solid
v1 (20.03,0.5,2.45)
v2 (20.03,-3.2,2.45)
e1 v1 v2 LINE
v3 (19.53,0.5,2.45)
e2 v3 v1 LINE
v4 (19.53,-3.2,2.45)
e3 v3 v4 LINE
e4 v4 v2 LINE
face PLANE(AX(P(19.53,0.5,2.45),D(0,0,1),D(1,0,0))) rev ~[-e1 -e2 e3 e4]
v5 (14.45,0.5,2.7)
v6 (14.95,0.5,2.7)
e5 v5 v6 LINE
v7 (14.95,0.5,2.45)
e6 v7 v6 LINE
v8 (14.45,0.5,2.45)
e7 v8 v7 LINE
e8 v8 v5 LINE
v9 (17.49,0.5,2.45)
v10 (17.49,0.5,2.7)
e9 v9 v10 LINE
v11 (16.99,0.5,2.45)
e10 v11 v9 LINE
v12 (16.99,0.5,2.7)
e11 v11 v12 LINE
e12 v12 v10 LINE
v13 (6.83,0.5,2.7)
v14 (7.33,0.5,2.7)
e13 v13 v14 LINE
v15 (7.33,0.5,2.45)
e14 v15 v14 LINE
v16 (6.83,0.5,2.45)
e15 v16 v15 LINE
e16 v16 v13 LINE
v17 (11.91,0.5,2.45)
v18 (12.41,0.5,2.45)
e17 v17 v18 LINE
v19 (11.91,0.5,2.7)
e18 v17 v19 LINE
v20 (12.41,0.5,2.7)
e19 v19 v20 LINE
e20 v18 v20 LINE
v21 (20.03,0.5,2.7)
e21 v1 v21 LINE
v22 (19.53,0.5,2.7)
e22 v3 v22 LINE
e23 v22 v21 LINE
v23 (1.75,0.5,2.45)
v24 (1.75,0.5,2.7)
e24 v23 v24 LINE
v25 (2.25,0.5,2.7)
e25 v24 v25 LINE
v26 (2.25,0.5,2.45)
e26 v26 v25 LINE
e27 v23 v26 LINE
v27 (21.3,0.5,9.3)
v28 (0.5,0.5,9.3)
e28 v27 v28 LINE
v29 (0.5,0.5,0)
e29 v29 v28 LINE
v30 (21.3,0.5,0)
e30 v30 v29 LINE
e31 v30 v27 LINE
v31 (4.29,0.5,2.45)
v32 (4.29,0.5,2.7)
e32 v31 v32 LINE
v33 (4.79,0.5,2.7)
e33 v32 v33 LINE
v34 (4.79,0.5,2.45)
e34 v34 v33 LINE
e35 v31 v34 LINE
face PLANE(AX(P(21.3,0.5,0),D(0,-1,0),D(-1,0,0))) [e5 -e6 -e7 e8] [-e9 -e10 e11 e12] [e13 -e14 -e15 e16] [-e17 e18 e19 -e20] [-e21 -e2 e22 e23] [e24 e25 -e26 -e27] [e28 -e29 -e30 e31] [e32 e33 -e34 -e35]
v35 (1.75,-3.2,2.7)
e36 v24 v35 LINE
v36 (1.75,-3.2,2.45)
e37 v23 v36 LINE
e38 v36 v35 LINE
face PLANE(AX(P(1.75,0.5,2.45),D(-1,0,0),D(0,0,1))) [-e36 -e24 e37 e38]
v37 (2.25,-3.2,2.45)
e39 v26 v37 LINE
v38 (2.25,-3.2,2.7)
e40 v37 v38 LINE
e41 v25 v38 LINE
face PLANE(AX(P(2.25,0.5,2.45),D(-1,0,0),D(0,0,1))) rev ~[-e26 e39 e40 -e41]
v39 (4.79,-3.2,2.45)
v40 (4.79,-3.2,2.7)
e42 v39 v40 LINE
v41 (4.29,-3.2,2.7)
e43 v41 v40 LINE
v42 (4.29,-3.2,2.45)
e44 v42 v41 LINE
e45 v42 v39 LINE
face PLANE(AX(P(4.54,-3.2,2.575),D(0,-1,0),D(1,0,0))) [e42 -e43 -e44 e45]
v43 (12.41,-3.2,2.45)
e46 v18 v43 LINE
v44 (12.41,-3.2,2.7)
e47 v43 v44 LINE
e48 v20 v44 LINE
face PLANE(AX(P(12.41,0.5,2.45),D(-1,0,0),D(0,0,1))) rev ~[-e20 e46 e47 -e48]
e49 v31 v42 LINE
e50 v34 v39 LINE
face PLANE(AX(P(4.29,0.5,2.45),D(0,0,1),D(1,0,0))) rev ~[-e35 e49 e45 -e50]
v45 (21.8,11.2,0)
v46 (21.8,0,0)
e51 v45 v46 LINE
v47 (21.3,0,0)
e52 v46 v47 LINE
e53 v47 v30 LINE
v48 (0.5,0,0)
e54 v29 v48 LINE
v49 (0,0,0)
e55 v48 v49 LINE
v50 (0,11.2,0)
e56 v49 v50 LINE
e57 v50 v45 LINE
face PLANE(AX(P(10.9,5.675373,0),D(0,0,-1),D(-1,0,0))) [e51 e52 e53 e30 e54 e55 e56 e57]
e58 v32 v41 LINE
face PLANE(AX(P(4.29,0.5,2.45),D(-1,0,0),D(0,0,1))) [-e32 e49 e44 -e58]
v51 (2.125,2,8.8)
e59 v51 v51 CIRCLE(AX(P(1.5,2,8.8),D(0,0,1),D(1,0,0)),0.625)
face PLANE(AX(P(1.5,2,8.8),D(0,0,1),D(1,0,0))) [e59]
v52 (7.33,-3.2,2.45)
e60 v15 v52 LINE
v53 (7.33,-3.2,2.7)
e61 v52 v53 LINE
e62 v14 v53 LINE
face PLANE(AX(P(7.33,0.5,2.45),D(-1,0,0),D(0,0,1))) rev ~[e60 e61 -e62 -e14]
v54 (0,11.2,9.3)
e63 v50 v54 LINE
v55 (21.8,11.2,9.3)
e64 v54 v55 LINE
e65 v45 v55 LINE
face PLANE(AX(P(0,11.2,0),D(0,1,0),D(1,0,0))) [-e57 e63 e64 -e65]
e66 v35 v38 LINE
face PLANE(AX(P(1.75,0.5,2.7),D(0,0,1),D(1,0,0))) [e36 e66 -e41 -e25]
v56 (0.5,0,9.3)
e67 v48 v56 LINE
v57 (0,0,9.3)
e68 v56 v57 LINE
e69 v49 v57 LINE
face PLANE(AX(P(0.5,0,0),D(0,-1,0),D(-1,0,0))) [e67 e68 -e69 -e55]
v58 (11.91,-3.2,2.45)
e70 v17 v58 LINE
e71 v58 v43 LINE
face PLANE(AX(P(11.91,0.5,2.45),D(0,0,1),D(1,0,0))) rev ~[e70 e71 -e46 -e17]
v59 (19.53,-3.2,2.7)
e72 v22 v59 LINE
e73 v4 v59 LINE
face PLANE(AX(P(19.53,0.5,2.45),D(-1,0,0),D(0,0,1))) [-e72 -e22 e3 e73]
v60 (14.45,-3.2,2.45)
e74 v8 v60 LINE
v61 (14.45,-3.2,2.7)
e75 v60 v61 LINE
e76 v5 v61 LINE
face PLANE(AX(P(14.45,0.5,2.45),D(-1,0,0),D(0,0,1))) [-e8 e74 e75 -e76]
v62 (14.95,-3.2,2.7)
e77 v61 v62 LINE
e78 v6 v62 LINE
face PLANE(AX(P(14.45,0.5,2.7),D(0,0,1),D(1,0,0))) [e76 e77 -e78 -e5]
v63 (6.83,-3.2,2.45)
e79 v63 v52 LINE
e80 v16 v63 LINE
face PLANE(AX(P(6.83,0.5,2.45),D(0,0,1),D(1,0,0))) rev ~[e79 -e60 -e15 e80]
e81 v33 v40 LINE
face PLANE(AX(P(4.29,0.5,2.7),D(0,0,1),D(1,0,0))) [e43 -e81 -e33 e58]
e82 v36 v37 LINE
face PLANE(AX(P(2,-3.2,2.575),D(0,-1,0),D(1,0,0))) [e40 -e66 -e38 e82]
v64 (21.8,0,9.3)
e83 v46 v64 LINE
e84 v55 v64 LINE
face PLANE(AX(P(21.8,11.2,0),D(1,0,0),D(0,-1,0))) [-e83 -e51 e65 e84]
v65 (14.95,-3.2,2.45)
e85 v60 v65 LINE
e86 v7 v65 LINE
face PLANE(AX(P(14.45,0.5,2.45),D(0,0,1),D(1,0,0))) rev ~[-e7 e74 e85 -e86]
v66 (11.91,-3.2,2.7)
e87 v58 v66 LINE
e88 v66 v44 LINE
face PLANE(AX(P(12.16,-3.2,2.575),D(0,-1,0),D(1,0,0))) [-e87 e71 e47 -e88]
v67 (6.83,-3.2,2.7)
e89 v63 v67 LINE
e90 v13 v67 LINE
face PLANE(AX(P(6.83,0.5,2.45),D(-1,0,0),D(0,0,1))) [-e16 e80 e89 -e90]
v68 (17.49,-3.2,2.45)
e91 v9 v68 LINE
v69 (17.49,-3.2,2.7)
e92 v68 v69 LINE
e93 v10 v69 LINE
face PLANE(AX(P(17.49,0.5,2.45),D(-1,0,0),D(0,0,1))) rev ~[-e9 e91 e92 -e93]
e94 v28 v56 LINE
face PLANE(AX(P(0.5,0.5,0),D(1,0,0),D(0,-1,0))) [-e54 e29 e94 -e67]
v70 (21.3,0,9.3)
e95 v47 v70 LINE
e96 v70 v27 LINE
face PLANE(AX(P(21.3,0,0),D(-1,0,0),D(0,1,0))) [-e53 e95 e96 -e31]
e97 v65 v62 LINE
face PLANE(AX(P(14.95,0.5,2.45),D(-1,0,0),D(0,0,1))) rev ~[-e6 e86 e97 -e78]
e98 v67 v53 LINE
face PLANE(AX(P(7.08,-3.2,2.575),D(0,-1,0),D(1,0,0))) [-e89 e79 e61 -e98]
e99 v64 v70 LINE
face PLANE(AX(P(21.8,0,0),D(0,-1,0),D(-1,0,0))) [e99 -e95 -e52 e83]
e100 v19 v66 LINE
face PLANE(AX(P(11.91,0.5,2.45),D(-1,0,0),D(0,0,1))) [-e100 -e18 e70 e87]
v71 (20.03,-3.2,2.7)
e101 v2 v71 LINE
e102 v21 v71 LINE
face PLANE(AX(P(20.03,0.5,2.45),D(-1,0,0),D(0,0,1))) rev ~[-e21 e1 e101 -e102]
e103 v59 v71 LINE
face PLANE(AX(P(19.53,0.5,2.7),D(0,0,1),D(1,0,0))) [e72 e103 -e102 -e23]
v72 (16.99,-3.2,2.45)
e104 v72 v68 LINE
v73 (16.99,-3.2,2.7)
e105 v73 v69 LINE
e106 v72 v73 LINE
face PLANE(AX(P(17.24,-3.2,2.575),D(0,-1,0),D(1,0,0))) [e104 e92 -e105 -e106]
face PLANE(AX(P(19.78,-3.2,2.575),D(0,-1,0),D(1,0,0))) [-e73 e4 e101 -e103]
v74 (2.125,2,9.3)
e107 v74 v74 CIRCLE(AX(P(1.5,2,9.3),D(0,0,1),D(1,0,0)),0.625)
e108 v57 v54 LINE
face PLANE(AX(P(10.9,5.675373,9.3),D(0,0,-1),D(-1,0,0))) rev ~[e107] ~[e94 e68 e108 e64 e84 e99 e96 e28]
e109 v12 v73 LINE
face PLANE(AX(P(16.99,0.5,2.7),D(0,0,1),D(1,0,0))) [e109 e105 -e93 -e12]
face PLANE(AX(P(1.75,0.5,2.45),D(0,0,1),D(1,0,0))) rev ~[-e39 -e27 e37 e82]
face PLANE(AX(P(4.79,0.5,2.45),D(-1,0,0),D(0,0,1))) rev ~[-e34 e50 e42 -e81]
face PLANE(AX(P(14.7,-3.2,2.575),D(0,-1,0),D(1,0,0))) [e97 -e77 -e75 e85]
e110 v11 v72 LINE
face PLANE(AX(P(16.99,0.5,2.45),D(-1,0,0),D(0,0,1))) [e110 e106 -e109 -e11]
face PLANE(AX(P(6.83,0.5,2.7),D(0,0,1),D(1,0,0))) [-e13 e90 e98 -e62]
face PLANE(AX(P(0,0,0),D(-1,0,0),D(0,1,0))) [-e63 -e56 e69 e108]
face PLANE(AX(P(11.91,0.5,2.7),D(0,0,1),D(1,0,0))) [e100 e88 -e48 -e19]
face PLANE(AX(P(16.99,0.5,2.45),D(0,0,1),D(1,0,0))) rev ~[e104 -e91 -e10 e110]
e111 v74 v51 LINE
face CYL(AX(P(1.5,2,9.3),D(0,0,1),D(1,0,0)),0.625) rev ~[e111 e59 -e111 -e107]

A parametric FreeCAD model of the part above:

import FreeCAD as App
import Part
import Sketcher
from FreeCAD import Vector
Q = App.Units.Quantity


def add_polygon(sketch, points):
    """Adds a closed chain of lines whose ends are joined by coincident constraints."""
    first, n = sketch.GeometryCount, len(points)
    for a, b in zip(points, points[1:] + points[:1]):
        sketch.addGeometry(Part.LineSegment(App.Vector(*a, 0), App.Vector(*b, 0)), False)
    for i in range(n):
        sketch.addConstraint(Sketcher.Constraint("Coincident", first + i, 2, first + (i + 1) % n, 1))

doc = App.newDocument("Part")
body = doc.addObject("PartDesign::Body", "Body")

# Sketch on XY plane
sketch1 = doc.addObject("Sketcher::SketchObject", "Sketch")
body.addObject(sketch1)
sketch1.AttachmentSupport = (doc.XY_Plane, [""])
sketch1.MapMode = "FlatFace"
add_polygon(sketch1, [(0, 11.2), (0, 0), (0.5, 0), (0.5, 0.5), (21.3, 0.5), (21.3, 0), (21.8, 0), (21.8, 11.2)])  # lines 0-7
sketch1.addConstraint([
    Sketcher.Constraint("Vertical", 0),
    Sketcher.Constraint("Horizontal", 1),
    Sketcher.Constraint("Vertical", 2),
    Sketcher.Constraint("Horizontal", 3),
    Sketcher.Constraint("Vertical", 4),
    Sketcher.Constraint("Horizontal", 5),
    Sketcher.Constraint("Vertical", 6),
    Sketcher.Constraint("Horizontal", 7),
    Sketcher.Constraint("Coincident", 0, 2, -1, 1),
    Sketcher.Constraint("PointOnObject", 4, 2, -1),
    Sketcher.Constraint("Equal", 1, 5),
    Sketcher.Constraint("Equal", 5, 2),
    Sketcher.Constraint("DistanceX", 1, 1, 1, 2, Q("0.5 mm")),
    Sketcher.Constraint("DistanceX", 3, 1, 3, 2, Q("20.8 mm")),
    Sketcher.Constraint("DistanceY", 0, 2, 0, 1, Q("11.2 mm")),
])
pad1 = doc.addObject("PartDesign::Pad", "Pad")
body.addObject(pad1)
pad1.Profile = sketch1
pad1.Length = 9.3

# Sketch on XZ plane
sketch2 = doc.addObject("Sketcher::SketchObject", "Sketch001")
body.addObject(sketch2)
sketch2.AttachmentSupport = (doc.XZ_Plane, [""])
sketch2.MapMode = "FlatFace"
sketch2.AttachmentOffset = App.Placement(Vector(0, 0, -0.5), App.Rotation())
add_polygon(sketch2, [(1.75, 2.7), (1.75, 2.45), (2.25, 2.45), (2.25, 2.7)])  # lines 0-3
add_polygon(sketch2, [(4.29, 2.7), (4.29, 2.45), (4.79, 2.45), (4.79, 2.7)])  # lines 4-7
add_polygon(sketch2, [(6.83, 2.7), (6.83, 2.45), (7.33, 2.45), (7.33, 2.7)])  # lines 8-11
add_polygon(sketch2, [(11.91, 2.7), (11.91, 2.45), (12.41, 2.45), (12.41, 2.7)])  # lines 12-15
add_polygon(sketch2, [(14.45, 2.7), (14.45, 2.45), (14.95, 2.45), (14.95, 2.7)])  # lines 16-19
add_polygon(sketch2, [(16.99, 2.7), (16.99, 2.45), (17.49, 2.45), (17.49, 2.7)])  # lines 20-23
add_polygon(sketch2, [(19.53, 2.7), (19.53, 2.45), (20.03, 2.45), (20.03, 2.7)])  # lines 24-27
sketch2.addConstraint([
    Sketcher.Constraint("Vertical", 0),
    Sketcher.Constraint("Horizontal", 1),
    Sketcher.Constraint("Vertical", 2),
    Sketcher.Constraint("Horizontal", 3),
    Sketcher.Constraint("Vertical", 4),
    Sketcher.Constraint("Horizontal", 5),
    Sketcher.Constraint("Vertical", 6),
    Sketcher.Constraint("Horizontal", 7),
    Sketcher.Constraint("Vertical", 8),
    Sketcher.Constraint("Horizontal", 9),
    Sketcher.Constraint("Vertical", 10),
    Sketcher.Constraint("Horizontal", 11),
    Sketcher.Constraint("Vertical", 12),
    Sketcher.Constraint("Horizontal", 13),
    Sketcher.Constraint("Vertical", 14),
    Sketcher.Constraint("Horizontal", 15),
    Sketcher.Constraint("Vertical", 16),
    Sketcher.Constraint("Horizontal", 17),
    Sketcher.Constraint("Vertical", 18),
    Sketcher.Constraint("Horizontal", 19),
    Sketcher.Constraint("Vertical", 20),
    Sketcher.Constraint("Horizontal", 21),
    Sketcher.Constraint("Vertical", 22),
    Sketcher.Constraint("Horizontal", 23),
    Sketcher.Constraint("Vertical", 24),
    Sketcher.Constraint("Horizontal", 25),
    Sketcher.Constraint("Vertical", 26),
    Sketcher.Constraint("Horizontal", 27),
    Sketcher.Constraint("Horizontal", 1, 2, 4, 2),
    Sketcher.Constraint("Horizontal", 3, 2, 6, 2),
    Sketcher.Constraint("Horizontal", 5, 2, 8, 2),
    Sketcher.Constraint("Horizontal", 7, 2, 10, 2),
    Sketcher.Constraint("Horizontal", 9, 2, 12, 2),
    Sketcher.Constraint("Horizontal", 11, 2, 14, 2),
    Sketcher.Constraint("Horizontal", 13, 2, 16, 2),
    Sketcher.Constraint("Horizontal", 15, 2, 18, 2),
    Sketcher.Constraint("Horizontal", 17, 2, 20, 2),
    Sketcher.Constraint("Horizontal", 19, 2, 22, 2),
    Sketcher.Constraint("Horizontal", 21, 2, 24, 2),
    Sketcher.Constraint("Horizontal", 23, 2, 26, 2),
    Sketcher.Constraint("Equal", 3, 5),
    Sketcher.Constraint("Equal", 7, 9),
    Sketcher.Constraint("Equal", 11, 13),
    Sketcher.Constraint("Equal", 15, 17),
    Sketcher.Constraint("Equal", 19, 21),
    Sketcher.Constraint("Equal", 23, 25),
    Sketcher.Constraint("DistanceX", 1, 1, 1, 2, Q("0.5 mm")),
    Sketcher.Constraint("DistanceY", 0, 2, 0, 1, Q("0.25 mm")),
    Sketcher.Constraint("DistanceY", -1, 1, 2, 2, Q("2.7 mm")),
    Sketcher.Constraint("DistanceX", -1, 1, 0, 2, Q("1.75 mm")),
    Sketcher.Constraint("DistanceX", -1, 1, 4, 2, Q("4.29 mm")),
    Sketcher.Constraint("DistanceX", -1, 1, 8, 2, Q("6.83 mm")),
    Sketcher.Constraint("DistanceX", -1, 1, 12, 2, Q("11.91 mm")),
    Sketcher.Constraint("DistanceX", -1, 1, 16, 2, Q("14.45 mm")),
    Sketcher.Constraint("DistanceX", -1, 1, 20, 2, Q("16.99 mm")),
    Sketcher.Constraint("DistanceX", -1, 1, 24, 2, Q("19.53 mm")),
])
pad2 = doc.addObject("PartDesign::Pad", "Pad001")
body.addObject(pad2)
pad2.Profile = sketch2
pad2.Length = 3.7

# Sketch on XY plane
sketch3 = doc.addObject("Sketcher::SketchObject", "Sketch002")
body.addObject(sketch3)
sketch3.AttachmentSupport = (doc.XY_Plane, [""])
sketch3.MapMode = "FlatFace"
sketch3.AttachmentOffset = App.Placement(Vector(0, 0, 9.3), App.Rotation())
sketch3.addGeometry(Part.Circle(Vector(1.5, 2, 0), Vector(0, 0, 1), 0.6), False)
sketch3.addConstraint([
    Sketcher.Constraint("Diameter", 0, Q("1.25 mm")),
    Sketcher.Constraint("DistanceY", -1, 1, 0, 3, Q("2 mm")),
    Sketcher.Constraint("DistanceX", -1, 1, 0, 3, Q("1.5 mm")),
])
pocket1 = doc.addObject("PartDesign::Pocket", "Pocket")
body.addObject(pocket1)
pocket1.Profile = sketch3
pocket1.Length = 0.5

doc.recompute()
